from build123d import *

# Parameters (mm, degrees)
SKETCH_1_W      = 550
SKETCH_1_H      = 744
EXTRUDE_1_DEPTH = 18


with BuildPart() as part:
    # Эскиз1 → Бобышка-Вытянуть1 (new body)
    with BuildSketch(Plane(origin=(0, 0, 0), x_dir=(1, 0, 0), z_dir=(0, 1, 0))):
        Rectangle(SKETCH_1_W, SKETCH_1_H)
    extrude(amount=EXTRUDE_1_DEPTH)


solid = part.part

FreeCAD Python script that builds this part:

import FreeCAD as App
import Part
import Sketcher

V = App.Vector


def add_polygon(sketch, points):
    """Adds a closed chain of lines whose ends are joined by coincident constraints."""
    first, n = sketch.GeometryCount, len(points)
    for a, b in zip(points, points[1:] + points[:1]):
        sketch.addGeometry(Part.LineSegment(App.Vector(*a, 0), App.Vector(*b, 0)), False)
    for i in range(n):
        sketch.addConstraint(Sketcher.Constraint("Coincident", first + i, 2, first + (i + 1) % n, 1))

doc = App.newDocument("Part")
body = doc.addObject("PartDesign::Body", "Body")

# Sketch on XZ plane
sketch1 = body.newObject("Sketcher::SketchObject", "Sketch")
sketch1.AttachmentSupport = (doc.getObject("XZ_Plane"), [""])
sketch1.MapMode = "FlatFace"
add_polygon(sketch1, [(-275, -372), (-275, 372), (275, 372), (275, -372)])  # lines 0-3
sketch1.addConstraint([
    Sketcher.Constraint("Vertical", 0),
    Sketcher.Constraint("Horizontal", 1),
    Sketcher.Constraint("Vertical", 2),
    Sketcher.Constraint("Horizontal", 3),
    Sketcher.Constraint("Symmetric", 0, 2, 2, 2, -1, 1),
    Sketcher.Constraint("DistanceX", 1, 1, 1, 2, 550.0),
    Sketcher.Constraint("DistanceY", 0, 1, 0, 2, 744.0),
])
pad1 = body.newObject("PartDesign::Pad", "Pad")
pad1.Profile = sketch1
pad1.Length = 18
pad1.Reversed = True

doc.recompute()
